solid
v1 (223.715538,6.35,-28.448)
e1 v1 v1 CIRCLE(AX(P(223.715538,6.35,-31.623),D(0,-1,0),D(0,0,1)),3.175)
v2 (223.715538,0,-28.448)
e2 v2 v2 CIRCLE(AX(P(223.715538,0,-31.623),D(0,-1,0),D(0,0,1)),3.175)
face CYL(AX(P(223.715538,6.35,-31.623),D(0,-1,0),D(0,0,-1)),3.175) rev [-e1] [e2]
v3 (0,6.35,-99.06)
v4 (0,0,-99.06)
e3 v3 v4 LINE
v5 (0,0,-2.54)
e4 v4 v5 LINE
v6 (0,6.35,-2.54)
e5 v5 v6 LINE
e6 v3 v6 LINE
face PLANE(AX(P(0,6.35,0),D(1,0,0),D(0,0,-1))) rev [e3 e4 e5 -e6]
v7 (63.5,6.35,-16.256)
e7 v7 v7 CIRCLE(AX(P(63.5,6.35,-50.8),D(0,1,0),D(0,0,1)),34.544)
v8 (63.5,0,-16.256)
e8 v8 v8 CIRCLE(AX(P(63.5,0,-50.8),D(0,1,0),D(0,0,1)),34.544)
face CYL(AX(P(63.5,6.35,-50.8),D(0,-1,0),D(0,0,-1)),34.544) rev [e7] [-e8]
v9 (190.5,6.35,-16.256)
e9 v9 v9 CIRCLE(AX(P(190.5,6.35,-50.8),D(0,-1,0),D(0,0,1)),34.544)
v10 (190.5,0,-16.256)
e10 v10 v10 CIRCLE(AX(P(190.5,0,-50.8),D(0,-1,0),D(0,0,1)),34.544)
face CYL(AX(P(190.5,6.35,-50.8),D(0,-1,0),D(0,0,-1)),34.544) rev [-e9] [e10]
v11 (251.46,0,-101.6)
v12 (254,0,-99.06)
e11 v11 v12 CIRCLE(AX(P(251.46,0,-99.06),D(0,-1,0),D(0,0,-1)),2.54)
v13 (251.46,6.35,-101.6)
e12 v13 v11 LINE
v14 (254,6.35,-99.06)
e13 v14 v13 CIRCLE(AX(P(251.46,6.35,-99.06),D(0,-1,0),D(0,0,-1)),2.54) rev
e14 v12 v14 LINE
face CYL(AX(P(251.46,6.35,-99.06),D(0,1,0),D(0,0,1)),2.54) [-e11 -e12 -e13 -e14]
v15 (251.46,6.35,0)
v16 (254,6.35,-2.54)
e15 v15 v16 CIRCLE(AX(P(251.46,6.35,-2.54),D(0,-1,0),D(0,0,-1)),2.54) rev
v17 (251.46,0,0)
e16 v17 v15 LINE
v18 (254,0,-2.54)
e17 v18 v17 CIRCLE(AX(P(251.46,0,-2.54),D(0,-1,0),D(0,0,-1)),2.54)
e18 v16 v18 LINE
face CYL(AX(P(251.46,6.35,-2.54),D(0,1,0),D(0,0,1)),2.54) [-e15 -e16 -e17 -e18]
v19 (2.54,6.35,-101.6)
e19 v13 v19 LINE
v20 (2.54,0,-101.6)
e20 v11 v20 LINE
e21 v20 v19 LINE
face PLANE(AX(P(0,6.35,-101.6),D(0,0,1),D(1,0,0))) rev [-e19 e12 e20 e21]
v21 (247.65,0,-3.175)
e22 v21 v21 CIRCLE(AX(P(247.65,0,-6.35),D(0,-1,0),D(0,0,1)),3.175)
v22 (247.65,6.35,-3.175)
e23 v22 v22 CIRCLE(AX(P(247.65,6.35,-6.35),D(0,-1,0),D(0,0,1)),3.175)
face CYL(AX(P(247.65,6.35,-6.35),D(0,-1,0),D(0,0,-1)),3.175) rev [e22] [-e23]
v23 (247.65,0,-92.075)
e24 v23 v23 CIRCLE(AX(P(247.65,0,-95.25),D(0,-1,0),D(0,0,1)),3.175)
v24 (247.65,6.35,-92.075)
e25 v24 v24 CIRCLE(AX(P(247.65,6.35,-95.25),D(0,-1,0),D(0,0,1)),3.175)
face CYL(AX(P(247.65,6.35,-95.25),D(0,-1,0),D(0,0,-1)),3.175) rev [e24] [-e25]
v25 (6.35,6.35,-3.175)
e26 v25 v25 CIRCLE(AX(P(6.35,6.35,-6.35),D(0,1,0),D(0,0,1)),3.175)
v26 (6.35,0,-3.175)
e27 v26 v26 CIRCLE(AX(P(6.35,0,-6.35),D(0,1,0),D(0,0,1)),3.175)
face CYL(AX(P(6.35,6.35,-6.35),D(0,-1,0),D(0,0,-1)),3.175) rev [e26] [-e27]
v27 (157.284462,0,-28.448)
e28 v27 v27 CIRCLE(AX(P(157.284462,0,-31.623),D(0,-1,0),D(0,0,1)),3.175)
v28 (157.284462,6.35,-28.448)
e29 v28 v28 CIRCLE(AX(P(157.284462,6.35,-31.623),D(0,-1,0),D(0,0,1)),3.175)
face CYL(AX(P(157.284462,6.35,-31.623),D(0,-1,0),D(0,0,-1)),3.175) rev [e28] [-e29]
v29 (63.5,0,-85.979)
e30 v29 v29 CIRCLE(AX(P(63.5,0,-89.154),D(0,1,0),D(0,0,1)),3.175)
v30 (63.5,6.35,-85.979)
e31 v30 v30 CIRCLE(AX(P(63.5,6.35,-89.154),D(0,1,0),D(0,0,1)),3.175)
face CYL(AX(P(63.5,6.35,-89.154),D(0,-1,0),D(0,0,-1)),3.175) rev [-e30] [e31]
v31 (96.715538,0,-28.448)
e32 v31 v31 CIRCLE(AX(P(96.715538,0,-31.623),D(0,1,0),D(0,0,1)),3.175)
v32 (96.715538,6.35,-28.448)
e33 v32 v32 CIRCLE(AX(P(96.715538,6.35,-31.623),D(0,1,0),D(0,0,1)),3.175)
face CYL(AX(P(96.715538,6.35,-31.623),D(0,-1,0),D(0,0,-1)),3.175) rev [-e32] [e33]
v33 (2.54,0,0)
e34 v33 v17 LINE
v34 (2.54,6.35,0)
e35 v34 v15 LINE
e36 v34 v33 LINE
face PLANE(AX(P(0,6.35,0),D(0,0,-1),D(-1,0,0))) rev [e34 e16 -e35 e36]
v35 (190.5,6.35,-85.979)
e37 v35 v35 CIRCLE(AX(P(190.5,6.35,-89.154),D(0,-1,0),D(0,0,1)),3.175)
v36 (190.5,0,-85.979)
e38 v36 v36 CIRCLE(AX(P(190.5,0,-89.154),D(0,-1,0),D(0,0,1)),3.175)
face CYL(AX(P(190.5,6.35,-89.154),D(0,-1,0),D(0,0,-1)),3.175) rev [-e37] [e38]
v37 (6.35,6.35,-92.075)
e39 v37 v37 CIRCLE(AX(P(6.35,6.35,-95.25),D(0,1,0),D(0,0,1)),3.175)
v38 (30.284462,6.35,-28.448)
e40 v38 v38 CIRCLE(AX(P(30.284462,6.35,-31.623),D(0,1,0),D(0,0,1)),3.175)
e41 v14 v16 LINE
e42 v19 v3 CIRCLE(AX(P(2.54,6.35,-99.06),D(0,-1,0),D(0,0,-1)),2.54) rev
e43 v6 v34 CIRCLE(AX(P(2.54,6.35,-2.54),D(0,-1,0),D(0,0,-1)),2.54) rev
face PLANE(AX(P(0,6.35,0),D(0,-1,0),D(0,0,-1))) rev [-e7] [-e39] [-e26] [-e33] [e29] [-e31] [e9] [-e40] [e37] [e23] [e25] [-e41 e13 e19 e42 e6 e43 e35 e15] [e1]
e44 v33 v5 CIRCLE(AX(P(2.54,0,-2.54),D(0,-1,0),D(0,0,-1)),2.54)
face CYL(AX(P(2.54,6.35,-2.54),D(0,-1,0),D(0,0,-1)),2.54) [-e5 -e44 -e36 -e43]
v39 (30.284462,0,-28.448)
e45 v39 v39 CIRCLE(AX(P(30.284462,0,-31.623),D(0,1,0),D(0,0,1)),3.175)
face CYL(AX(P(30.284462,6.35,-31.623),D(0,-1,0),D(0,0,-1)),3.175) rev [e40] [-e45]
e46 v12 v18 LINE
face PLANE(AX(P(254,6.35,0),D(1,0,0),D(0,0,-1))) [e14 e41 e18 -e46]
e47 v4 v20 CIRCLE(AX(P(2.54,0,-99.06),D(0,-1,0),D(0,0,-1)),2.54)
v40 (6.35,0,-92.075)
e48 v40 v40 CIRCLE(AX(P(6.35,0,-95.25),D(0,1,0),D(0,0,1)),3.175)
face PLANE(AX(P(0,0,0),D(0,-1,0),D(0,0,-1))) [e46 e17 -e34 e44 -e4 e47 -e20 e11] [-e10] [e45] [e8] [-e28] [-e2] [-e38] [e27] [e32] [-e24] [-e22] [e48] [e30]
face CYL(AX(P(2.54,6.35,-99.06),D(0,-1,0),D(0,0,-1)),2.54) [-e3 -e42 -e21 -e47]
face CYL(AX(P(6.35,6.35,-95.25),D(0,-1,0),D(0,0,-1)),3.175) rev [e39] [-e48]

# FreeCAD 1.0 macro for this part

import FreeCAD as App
import Part
import Sketcher
from FreeCAD import Vector
Q = App.Units.Quantity


def edges_at(feature, points):
    """Names of the edges that pass closest to the given points."""
    edges = feature.Shape.Edges
    near = lambda p: min(range(len(edges)), key=lambda i: edges[i].distToShape(Part.Vertex(*p))[0])
    return sorted({f"Edge{near(p) + 1}" for p in points})


def add_polygon(sketch, points):
    """Adds a closed chain of lines whose ends are joined by coincident constraints."""
    first, n = sketch.GeometryCount, len(points)
    for a, b in zip(points, points[1:] + points[:1]):
        sketch.addGeometry(Part.LineSegment(App.Vector(*a, 0), App.Vector(*b, 0)), False)
    for i in range(n):
        sketch.addConstraint(Sketcher.Constraint("Coincident", first + i, 2, first + (i + 1) % n, 1))

doc = App.newDocument("Part")
body = doc.addObject("PartDesign::Body", "Body")

sketch1 = doc.addObject("Sketcher::SketchObject", "Sketch")
body.addObject(sketch1)
sketch1.AttachmentSupport = (doc.XZ_Plane, [""])
sketch1.MapMode = "FlatFace"
add_polygon(sketch1, [(0, -101.6), (0, 0), (127, 0), (127, -101.6)])
sketch1.addGeometry(Part.Circle(Vector(6.35, -6.35, 0), Vector(0, 0, 1), 3.175), False)
sketch1.addGeometry(Part.Circle(Vector(30.284462, -31.623, 0), Vector(0, 0, 1), 3.175), False)
sketch1.addGeometry(Part.Circle(Vector(63.5, -50.8, 0), Vector(0, 0, 1), 34.544), False)
sketch1.addGeometry(Part.Circle(Vector(96.715538, -31.623, 0), Vector(0, 0, 1), 3.175), False)
sketch1.addGeometry(Part.Circle(Vector(6.35, -95.25, 0), Vector(0, 0, 1), 3.175), False)
sketch1.addGeometry(Part.Circle(Vector(63.5, -89.154, 0), Vector(0, 0, 1), 3.175), False)
sketch1.addConstraint(Sketcher.Constraint("Vertical", 0))
sketch1.addConstraint(Sketcher.Constraint("Horizontal", 1))
sketch1.addConstraint(Sketcher.Constraint("Vertical", 2))
sketch1.addConstraint(Sketcher.Constraint("Horizontal", 3))
sketch1.addConstraint(Sketcher.Constraint("Coincident", 0, 2, -1, 1))
sketch1.addConstraint(Sketcher.Constraint("Equal", 4, 5))
sketch1.addConstraint(Sketcher.Constraint("Equal", 5, 7))
sketch1.addConstraint(Sketcher.Constraint("Equal", 7, 8))
sketch1.addConstraint(Sketcher.Constraint("Equal", 8, 9))
sketch1.addConstraint(Sketcher.Constraint("Horizontal", 5, 3, 7, 3))
sketch1.addConstraint(Sketcher.Constraint("Vertical", 4, 3, 8, 3))
sketch1.addConstraint(Sketcher.Constraint("Vertical", 6, 3, 9, 3))
sketch1.addConstraint(Sketcher.Constraint("Diameter", 4, Q("0.25 in")))
sketch1.addConstraint(Sketcher.Constraint("Diameter", 6, Q("2.72 in")))
sketch1.addConstraint(Sketcher.Constraint("DistanceX", 1, 1, 1, 2, Q("5 in")))
sketch1.addConstraint(Sketcher.Constraint("DistanceY", 0, 1, 0, 2, Q("4 in")))
sketch1.addConstraint(Sketcher.Constraint("DistanceY", 6, 3, -1, 1, Q("2 in")))
sketch1.addConstraint(Sketcher.Constraint("DistanceX", -1, 1, 6, 3, Q("2.5 in")))
sketch1.addConstraint(Sketcher.Constraint("DistanceY", 8, 3, 4, 3, Q("3.5 in")))
sketch1.addConstraint(Sketcher.Constraint("DistanceX", -1, 1, 4, 3, Q("0.25 in")))
sketch1.addConstraint(Sketcher.Constraint("DistanceY", 4, 3, -1, 1, Q("0.25 in")))
sketch1.addConstraint(Sketcher.Constraint("DistanceY", 9, 3, -1, 1, Q("3.51 in")))
sketch1.addConstraint(Sketcher.Constraint("DistanceY", 5, 3, -1, 1, Q("1.245 in")))
sketch1.addConstraint(Sketcher.Constraint("DistanceX", -1, 1, 5, 3, 30.284462))
sketch1.addConstraint(Sketcher.Constraint("DistanceX", -1, 1, 7, 3, 96.715538))
pad1 = doc.addObject("PartDesign::Pad", "Pad")
body.addObject(pad1)
pad1.Profile = sketch1
pad1.Length = Q("0.25 in")
pad1.Reversed = True
doc.recompute()

fillet = doc.addObject("PartDesign::Fillet", "Fillet")
body.addObject(fillet)
fillet.Base = (pad1, edges_at(pad1, [(0, 3.175, -101.6), (0, 3.175, 0)]))
fillet.Radius = Q("0.1 in")
doc.recompute()

datumplane = doc.addObject("PartDesign::Plane", "DatumPlane")
body.addObject(datumplane)
datumplane.AttachmentSupport = (doc.YZ_Plane, [""])
datumplane.MapMode = "FlatFace"
datumplane.AttachmentOffset = App.Placement(Vector(0, 0, 5 * 25.4), App.Rotation())
mirrored = doc.addObject("PartDesign::Mirrored", "Mirrored")
body.addObject(mirrored)
mirrored.Originals = [pad1]
mirrored.MirrorPlane = (datumplane, [""])
body.Tip = mirrored
doc.recompute()

fillet2 = doc.addObject("PartDesign::Fillet", "Fillet001")
body.addObject(fillet2)
fillet2.Base = (mirrored, edges_at(mirrored, [(254, 3.175, -101.6), (254, 3.175, 0)]))
fillet2.Radius = Q("0.1 in")

doc.recompute()
